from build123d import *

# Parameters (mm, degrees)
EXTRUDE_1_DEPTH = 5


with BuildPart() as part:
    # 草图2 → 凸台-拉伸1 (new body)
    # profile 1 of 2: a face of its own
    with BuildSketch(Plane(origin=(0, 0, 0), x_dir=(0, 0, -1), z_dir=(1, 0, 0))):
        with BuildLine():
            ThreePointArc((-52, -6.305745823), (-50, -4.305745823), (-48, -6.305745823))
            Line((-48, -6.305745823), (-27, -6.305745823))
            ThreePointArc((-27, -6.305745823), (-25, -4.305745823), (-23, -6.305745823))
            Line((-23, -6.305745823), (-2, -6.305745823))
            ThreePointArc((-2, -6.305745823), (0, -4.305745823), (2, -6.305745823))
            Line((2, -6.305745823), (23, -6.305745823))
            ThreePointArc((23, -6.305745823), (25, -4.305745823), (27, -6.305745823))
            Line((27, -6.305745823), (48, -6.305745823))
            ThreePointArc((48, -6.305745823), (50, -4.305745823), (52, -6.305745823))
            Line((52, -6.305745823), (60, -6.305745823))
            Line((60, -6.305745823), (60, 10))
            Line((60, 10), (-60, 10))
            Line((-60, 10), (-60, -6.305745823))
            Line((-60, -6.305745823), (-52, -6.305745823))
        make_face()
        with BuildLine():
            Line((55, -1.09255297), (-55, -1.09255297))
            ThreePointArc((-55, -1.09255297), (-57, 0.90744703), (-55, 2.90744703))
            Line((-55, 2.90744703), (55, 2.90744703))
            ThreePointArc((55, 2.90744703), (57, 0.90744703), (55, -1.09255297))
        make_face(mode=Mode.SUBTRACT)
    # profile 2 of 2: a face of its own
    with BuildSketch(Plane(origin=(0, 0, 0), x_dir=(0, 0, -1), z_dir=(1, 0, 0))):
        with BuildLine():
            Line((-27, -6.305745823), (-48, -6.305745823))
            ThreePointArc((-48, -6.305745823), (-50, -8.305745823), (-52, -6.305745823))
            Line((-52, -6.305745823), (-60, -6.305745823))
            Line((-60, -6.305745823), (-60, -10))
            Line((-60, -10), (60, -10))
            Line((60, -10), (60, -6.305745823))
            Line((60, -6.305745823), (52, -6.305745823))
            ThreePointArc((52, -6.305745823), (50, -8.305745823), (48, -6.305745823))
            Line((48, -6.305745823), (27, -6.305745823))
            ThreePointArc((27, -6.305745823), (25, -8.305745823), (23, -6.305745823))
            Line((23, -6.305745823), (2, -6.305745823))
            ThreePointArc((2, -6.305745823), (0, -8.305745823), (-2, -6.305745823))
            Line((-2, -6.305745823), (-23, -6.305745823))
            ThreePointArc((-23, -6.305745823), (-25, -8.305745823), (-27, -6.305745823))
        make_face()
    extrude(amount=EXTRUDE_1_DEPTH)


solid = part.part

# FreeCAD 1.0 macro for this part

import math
import FreeCAD as App
import Part
import Sketcher
Q = App.Units.Quantity


def add_polygon(sketch, points):
    """Adds a closed chain of lines whose ends are joined by coincident constraints."""
    first, n = sketch.GeometryCount, len(points)
    for a, b in zip(points, points[1:] + points[:1]):
        sketch.addGeometry(Part.LineSegment(App.Vector(*a, 0), App.Vector(*b, 0)), False)
    for i in range(n):
        sketch.addConstraint(Sketcher.Constraint("Coincident", first + i, 2, first + (i + 1) % n, 1))

doc = App.newDocument("Part")
body = doc.addObject("PartDesign::Body", "Body")

# Sketch on YZ plane
sketch1 = body.newObject("Sketcher::SketchObject", "Sketch")
sketch1.AttachmentSupport = (doc.getObject("YZ_Plane"), [""])
sketch1.MapMode = "FlatFace"
add_polygon(sketch1, [(10, 60), (-10, 60), (-10, -60), (10, -60)])  # lines 0-3
sketch1.addGeometry(Part.Circle(App.Vector(-6.305746, 50, 0), App.Vector(0, 0, 1), 2), False)  # 4
sketch1.addGeometry(Part.Circle(App.Vector(-6.305746, 25, 0), App.Vector(0, 0, 1), 2), False)  # 5
sketch1.addGeometry(Part.Circle(App.Vector(-6.305746, 0, 0), App.Vector(0, 0, 1), 2), False)  # 6
sketch1.addGeometry(Part.Circle(App.Vector(-6.305746, -50, 0), App.Vector(0, 0, 1), 2), False)  # 7
sketch1.addGeometry(Part.Circle(App.Vector(-6.305746, -25, 0), App.Vector(0, 0, 1), 2), False)  # 8
sketch1.addGeometry(Part.ArcOfCircle(Part.Circle(App.Vector(0.907447, -55, 0), App.Vector(0, 0, 1), 2), math.radians(180), math.radians(360)), False)  # 9
sketch1.addGeometry(Part.LineSegment(App.Vector(-1.092553, -55, 0), App.Vector(-1.092553, 55, 0)), False)  # 10
sketch1.addGeometry(Part.ArcOfCircle(Part.Circle(App.Vector(0.907447, 55, 0), App.Vector(0, 0, 1), 2), math.radians(0), math.radians(180)), False)  # 11
sketch1.addGeometry(Part.LineSegment(App.Vector(2.907447, 55, 0), App.Vector(2.907447, -55, 0)), False)  # 12
sketch1.addConstraint(Sketcher.Constraint("Tangent", 9, 1, 10, 1))
sketch1.addConstraint(Sketcher.Constraint("Tangent", 10, 2, 11, 2))
sketch1.addConstraint(Sketcher.Constraint("Tangent", 11, 1, 12, 1))
sketch1.addConstraint(Sketcher.Constraint("Tangent", 12, 2, 9, 2))
sketch1.addConstraint(Sketcher.Constraint("Horizontal", 0))
sketch1.addConstraint(Sketcher.Constraint("Vertical", 1))
sketch1.addConstraint(Sketcher.Constraint("Horizontal", 2))
sketch1.addConstraint(Sketcher.Constraint("Vertical", 3))
sketch1.addConstraint(Sketcher.Constraint("Vertical", 10))
sketch1.addConstraint(Sketcher.Constraint("Vertical", 12))
sketch1.addConstraint(Sketcher.Constraint("Equal", 4, 5))
sketch1.addConstraint(Sketcher.Constraint("Equal", 5, 6))
sketch1.addConstraint(Sketcher.Constraint("Equal", 6, 7))
sketch1.addConstraint(Sketcher.Constraint("Equal", 7, 8))
sketch1.addConstraint(Sketcher.Constraint("Equal", 8, 9))
sketch1.addConstraint(Sketcher.Constraint("Symmetric", 0, 2, 2, 2, -1, 1))
sketch1.addConstraint(Sketcher.Constraint("Symmetric", 4, 3, 7, 3, -1))
sketch1.addConstraint(Sketcher.Constraint("Symmetric", 5, 3, 8, 3, -1))
sketch1.addConstraint(Sketcher.Constraint("PointOnObject", 6, 3, -1))
sketch1.addConstraint(Sketcher.Constraint("Vertical", 4, 3, 5, 3))
sketch1.addConstraint(Sketcher.Constraint("Vertical", 5, 3, 6, 3))
sketch1.addConstraint(Sketcher.Constraint("Diameter", 4, Q("4 mm")))
sketch1.addConstraint(Sketcher.Constraint("DistanceX", 0, 2, 0, 1, Q("20 mm")))
sketch1.addConstraint(Sketcher.Constraint("DistanceY", 1, 2, 1, 1, Q("120 mm")))
sketch1.addConstraint(Sketcher.Constraint("DistanceY", 10, 1, 10, 2, Q("110 mm")))
sketch1.addConstraint(Sketcher.Constraint("DistanceY", -1, 1, 4, 3, Q("50 mm")))
sketch1.addConstraint(Sketcher.Constraint("DistanceY", -1, 1, 5, 3, Q("25 mm")))
sketch1.addConstraint(Sketcher.Constraint("DistanceY", 9, 3, -1, 1, Q("55 mm")))
sketch1.addConstraint(Sketcher.Constraint("DistanceX", 4, 3, -1, 1, Q("6.305746 mm")))
sketch1.addConstraint(Sketcher.Constraint("DistanceX", -1, 1, 9, 3, Q("0.907447 mm")))
pad1 = body.newObject("PartDesign::Pad", "Pad")
pad1.Profile = sketch1
pad1.Length = 5

doc.recompute()
